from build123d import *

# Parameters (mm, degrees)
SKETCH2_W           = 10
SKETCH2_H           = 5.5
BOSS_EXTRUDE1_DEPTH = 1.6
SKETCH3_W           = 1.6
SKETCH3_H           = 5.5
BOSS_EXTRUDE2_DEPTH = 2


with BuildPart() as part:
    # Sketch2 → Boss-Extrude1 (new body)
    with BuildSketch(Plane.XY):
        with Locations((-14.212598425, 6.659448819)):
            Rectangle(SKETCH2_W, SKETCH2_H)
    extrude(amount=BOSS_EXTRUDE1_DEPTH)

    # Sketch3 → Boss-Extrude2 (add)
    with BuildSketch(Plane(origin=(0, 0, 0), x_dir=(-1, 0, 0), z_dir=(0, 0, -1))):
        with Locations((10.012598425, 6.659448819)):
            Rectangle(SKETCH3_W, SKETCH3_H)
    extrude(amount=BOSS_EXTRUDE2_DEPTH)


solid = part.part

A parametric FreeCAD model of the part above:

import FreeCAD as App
import Part
import Sketcher

doc = App.newDocument("Part")
params = doc.addObject("Spreadsheet::Sheet", "Params")
for row, (alias, value) in enumerate([
    ("sketch1_width", "10 mm"),
    ("sketch1_height", "5.5 mm"),
    ("pad1_length", "1.6 mm"),
    ("sketch2_width", "1.6 mm"),
    ("sketch2_height", "5.5 mm"),
    ("pad2_length", "2 mm"),
], start=1):
    params.set(f"A{row}", alias)
    params.set(f"B{row}", "=" + value)
    params.setAlias(f"B{row}", alias)

body = doc.addObject("PartDesign::Body", "Body")

sketch1 = body.newObject("Sketcher::SketchObject", "Sketch")
sketch1.AttachmentSupport = (doc.getObject("XY_Plane"), [""])
sketch1.MapMode = "FlatFace"
sketch1.addGeometry([
    Part.LineSegment(App.Vector(-19.212598, 9.409449, 0), App.Vector(-19.212598, 3.909449, 0)),
    Part.LineSegment(App.Vector(-19.212598, 3.909449, 0), App.Vector(-9.212598, 3.909449, 0)),
    Part.LineSegment(App.Vector(-9.212598, 3.909449, 0), App.Vector(-9.212598, 9.409449, 0)),
    Part.LineSegment(App.Vector(-9.212598, 9.409449, 0), App.Vector(-19.212598, 9.409449, 0)),
], False)
sketch1.addConstraint([
    Sketcher.Constraint("Coincident", 0, 2, 1, 1),
    Sketcher.Constraint("Coincident", 1, 2, 2, 1),
    Sketcher.Constraint("Coincident", 2, 2, 3, 1),
    Sketcher.Constraint("Coincident", 3, 2, 0, 1),
    Sketcher.Constraint("Vertical", 0),
    Sketcher.Constraint("Horizontal", 1),
    Sketcher.Constraint("Vertical", 2),
    Sketcher.Constraint("Horizontal", 3),
    Sketcher.Constraint("DistanceX", 1, 1, 1, 2, 10.0),
    Sketcher.Constraint("DistanceY", 0, 2, 0, 1, 5.5),
    Sketcher.Constraint("DistanceX", 0, 2, -1, 1, 19.212598),
    Sketcher.Constraint("DistanceY", -1, 1, 0, 2, 3.909449),
])
sketch1.setExpression("Constraints[8]", "Params.sketch1_width")
sketch1.setExpression("Constraints[9]", "Params.sketch1_height")
pad1 = body.newObject("PartDesign::Pad", "Pad")
pad1.Profile = sketch1
pad1.setExpression("Length", "Params.pad1_length")

sketch2 = body.newObject("Sketcher::SketchObject", "Sketch001")
sketch2.AttachmentSupport = (doc.getObject("XY_Plane"), [""])
sketch2.MapMode = "FlatFace"
sketch2.addGeometry([
    Part.LineSegment(App.Vector(-9.212598, 9.409449, 0), App.Vector(-9.212598, 3.909449, 0)),
    Part.LineSegment(App.Vector(-9.212598, 3.909449, 0), App.Vector(-10.812598, 3.909449, 0)),
    Part.LineSegment(App.Vector(-10.812598, 3.909449, 0), App.Vector(-10.812598, 9.409449, 0)),
    Part.LineSegment(App.Vector(-10.812598, 9.409449, 0), App.Vector(-9.212598, 9.409449, 0)),
], False)
sketch2.addConstraint([
    Sketcher.Constraint("Coincident", 0, 2, 1, 1),
    Sketcher.Constraint("Coincident", 1, 2, 2, 1),
    Sketcher.Constraint("Coincident", 2, 2, 3, 1),
    Sketcher.Constraint("Coincident", 3, 2, 0, 1),
    Sketcher.Constraint("Vertical", 0),
    Sketcher.Constraint("Horizontal", 1),
    Sketcher.Constraint("Vertical", 2),
    Sketcher.Constraint("Horizontal", 3),
    Sketcher.Constraint("DistanceX", 1, 2, 1, 1, 1.6),
    Sketcher.Constraint("DistanceY", 0, 2, 0, 1, 5.5),
    Sketcher.Constraint("DistanceX", 0, 2, -1, 1, 9.212598),
    Sketcher.Constraint("DistanceY", -1, 1, 0, 2, 3.909449),
])
sketch2.setExpression("Constraints[8]", "Params.sketch2_width")
sketch2.setExpression("Constraints[9]", "Params.sketch2_height")
pad2 = body.newObject("PartDesign::Pad", "Pad001")
pad2.Profile = sketch2
pad2.setExpression("Length", "Params.pad2_length")
pad2.Reversed = True

doc.recompute()
